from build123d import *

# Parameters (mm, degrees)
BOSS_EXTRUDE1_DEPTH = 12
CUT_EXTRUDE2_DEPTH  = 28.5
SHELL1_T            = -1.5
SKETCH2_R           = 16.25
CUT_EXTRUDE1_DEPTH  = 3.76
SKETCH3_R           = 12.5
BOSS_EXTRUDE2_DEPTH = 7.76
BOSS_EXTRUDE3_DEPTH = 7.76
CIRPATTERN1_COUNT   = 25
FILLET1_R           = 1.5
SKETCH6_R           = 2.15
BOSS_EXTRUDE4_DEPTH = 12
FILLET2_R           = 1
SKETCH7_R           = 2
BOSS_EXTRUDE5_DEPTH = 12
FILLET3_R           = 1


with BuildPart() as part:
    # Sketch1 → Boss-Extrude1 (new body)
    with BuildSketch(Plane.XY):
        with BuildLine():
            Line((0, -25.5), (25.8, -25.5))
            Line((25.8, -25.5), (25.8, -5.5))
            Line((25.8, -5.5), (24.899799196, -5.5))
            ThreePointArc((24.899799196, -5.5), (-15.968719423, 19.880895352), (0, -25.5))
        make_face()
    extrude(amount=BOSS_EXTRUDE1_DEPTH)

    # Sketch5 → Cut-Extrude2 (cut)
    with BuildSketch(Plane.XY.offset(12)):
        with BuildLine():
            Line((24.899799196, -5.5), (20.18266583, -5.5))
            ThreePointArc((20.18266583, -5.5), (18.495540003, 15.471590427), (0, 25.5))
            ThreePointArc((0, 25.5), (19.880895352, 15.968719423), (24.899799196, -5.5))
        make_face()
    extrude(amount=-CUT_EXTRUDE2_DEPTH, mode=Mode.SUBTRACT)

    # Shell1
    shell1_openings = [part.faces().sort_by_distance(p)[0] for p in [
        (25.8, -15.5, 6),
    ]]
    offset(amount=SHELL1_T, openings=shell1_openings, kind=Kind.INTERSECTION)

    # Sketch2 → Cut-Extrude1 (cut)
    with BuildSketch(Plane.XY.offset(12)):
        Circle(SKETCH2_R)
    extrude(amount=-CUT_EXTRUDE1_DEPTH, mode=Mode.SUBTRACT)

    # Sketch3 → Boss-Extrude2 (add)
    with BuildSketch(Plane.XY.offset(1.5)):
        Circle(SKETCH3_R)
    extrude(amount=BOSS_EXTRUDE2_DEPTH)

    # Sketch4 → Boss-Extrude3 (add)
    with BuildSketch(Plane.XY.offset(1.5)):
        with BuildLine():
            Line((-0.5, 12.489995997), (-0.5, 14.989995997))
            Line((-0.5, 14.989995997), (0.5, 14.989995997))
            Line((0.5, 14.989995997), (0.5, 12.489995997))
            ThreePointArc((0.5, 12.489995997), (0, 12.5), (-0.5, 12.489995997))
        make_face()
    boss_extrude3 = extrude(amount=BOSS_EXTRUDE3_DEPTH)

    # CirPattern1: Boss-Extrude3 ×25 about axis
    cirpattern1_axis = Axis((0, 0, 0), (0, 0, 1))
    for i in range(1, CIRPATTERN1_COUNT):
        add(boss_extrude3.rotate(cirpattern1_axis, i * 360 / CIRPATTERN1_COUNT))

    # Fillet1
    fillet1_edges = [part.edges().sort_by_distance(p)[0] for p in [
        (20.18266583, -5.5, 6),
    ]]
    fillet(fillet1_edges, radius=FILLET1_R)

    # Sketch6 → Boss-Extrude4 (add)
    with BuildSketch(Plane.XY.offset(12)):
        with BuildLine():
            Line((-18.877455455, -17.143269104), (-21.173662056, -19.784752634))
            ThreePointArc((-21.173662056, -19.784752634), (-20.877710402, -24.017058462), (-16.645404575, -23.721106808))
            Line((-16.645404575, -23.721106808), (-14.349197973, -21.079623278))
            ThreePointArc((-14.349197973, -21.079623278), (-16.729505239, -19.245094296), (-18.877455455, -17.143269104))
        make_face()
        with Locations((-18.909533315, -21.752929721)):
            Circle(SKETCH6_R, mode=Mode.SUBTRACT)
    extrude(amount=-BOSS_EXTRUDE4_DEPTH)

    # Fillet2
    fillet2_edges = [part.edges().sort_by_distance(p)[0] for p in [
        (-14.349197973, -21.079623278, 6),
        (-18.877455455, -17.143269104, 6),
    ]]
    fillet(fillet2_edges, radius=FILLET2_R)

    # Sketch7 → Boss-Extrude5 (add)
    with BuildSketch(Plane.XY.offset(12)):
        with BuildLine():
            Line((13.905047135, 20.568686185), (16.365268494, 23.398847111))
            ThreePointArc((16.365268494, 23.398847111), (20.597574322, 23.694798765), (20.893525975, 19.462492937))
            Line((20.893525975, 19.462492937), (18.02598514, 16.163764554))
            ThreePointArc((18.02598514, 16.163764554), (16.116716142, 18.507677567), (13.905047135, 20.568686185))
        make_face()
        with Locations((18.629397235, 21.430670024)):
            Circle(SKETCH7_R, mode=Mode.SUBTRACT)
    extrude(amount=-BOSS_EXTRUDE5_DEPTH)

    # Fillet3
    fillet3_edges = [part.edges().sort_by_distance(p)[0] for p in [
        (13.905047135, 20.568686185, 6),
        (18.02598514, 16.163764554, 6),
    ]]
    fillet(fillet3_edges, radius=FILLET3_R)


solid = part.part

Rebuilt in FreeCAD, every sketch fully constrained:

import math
import FreeCAD as App
import Part
import Sketcher

V = App.Vector
Q = App.Units.Quantity


def edges_at(feature, points):
    """Names of the edges that pass closest to the given points."""
    edges = feature.Shape.Edges
    near = lambda p: min(range(len(edges)), key=lambda i: edges[i].distToShape(Part.Vertex(*p))[0])
    return sorted({f"Edge{near(p) + 1}" for p in points})


def faces_at(feature, points):
    """Names of the faces that lie closest to the given points."""
    faces = feature.Shape.Faces
    near = lambda p: min(range(len(faces)), key=lambda i: faces[i].distToShape(Part.Vertex(*p))[0])
    return sorted({f"Face{near(p) + 1}" for p in points})

doc = App.newDocument("Part")
body = doc.addObject("PartDesign::Body", "Body")

sketch1 = doc.addObject("Sketcher::SketchObject", "Sketch")
body.addObject(sketch1)
sketch1.AttachmentSupport = (doc.XY_Plane, [""])
sketch1.MapMode = "FlatFace"
sketch1.addGeometry(Part.LineSegment(V(0, -25.5, 0), V(25.8, -25.5, 0)), False)
sketch1.addGeometry(Part.LineSegment(V(25.8, -25.5, 0), V(25.8, -5.5, 0)), False)
sketch1.addGeometry(Part.LineSegment(V(25.8, -5.5, 0), V(24.899799, -5.5, 0)), False)
sketch1.addGeometry(Part.ArcOfCircle(Part.Circle(V(0, 0, 0), V(0, 0, 1), 25.5), math.radians(-12.455793), math.radians(270)), False)
sketch1.addConstraint(Sketcher.Constraint("Coincident", 0, 2, 1, 1))
sketch1.addConstraint(Sketcher.Constraint("Coincident", 1, 2, 2, 1))
sketch1.addConstraint(Sketcher.Constraint("Coincident", 2, 2, 3, 1))
sketch1.addConstraint(Sketcher.Constraint("Tangent", 3, 2, 0, 1))
sketch1.addConstraint(Sketcher.Constraint("Horizontal", 0))
sketch1.addConstraint(Sketcher.Constraint("Vertical", 1))
sketch1.addConstraint(Sketcher.Constraint("Horizontal", 2))
sketch1.addConstraint(Sketcher.Constraint("Coincident", 3, 3, -1, 1))
sketch1.addConstraint(Sketcher.Constraint("Radius", 3, Q("25.5 mm")))
sketch1.addConstraint(Sketcher.Constraint("DistanceY", 1, 1, 1, 2, Q("20 mm")))
sketch1.addConstraint(Sketcher.Constraint("DistanceX", 0, 1, 0, 2, Q("25.8 mm")))
pad1 = doc.addObject("PartDesign::Pad", "Pad")
body.addObject(pad1)
pad1.Profile = sketch1
pad1.Length = 12

sketch2 = doc.addObject("Sketcher::SketchObject", "Sketch001")
body.addObject(sketch2)
sketch2.AttachmentSupport = (doc.XY_Plane, [""])
sketch2.MapMode = "FlatFace"
sketch2.AttachmentOffset = App.Placement(V(0, 0, 12), App.Rotation())
sketch2.addGeometry(Part.LineSegment(V(20.182666, -5.5, 0), V(24.899799, -5.5, 0)), False)
sketch2.addGeometry(Part.ArcOfCircle(Part.Circle(V(0, 0, 0), V(0, 0, 1), 25.5), math.radians(-12.455793), math.radians(90)), False)
sketch2.addGeometry(Part.ArcOfCircle(Part.Circle(V(0, 3.43, 0), V(0, 0, 1), 22.07), math.radians(-23.86742), math.radians(90)), False)
sketch2.addConstraint(Sketcher.Constraint("Coincident", 0, 2, 1, 1))
sketch2.addConstraint(Sketcher.Constraint("Tangent", 1, 2, 2, 2))
sketch2.addConstraint(Sketcher.Constraint("Coincident", 2, 1, 0, 1))
sketch2.addConstraint(Sketcher.Constraint("Horizontal", 0))
sketch2.addConstraint(Sketcher.Constraint("Coincident", 1, 3, -1, 1))
sketch2.addConstraint(Sketcher.Constraint("PointOnObject", 2, 3, -2))
sketch2.addConstraint(Sketcher.Constraint("Radius", 1, Q("25.5 mm")))
sketch2.addConstraint(Sketcher.Constraint("Radius", 2, Q("22.07 mm")))
sketch2.addConstraint(Sketcher.Constraint("DistanceY", 0, 2, 1, 2, Q("31 mm")))
pocket1 = doc.addObject("PartDesign::Pocket", "Pocket")
body.addObject(pocket1)
pocket1.Profile = sketch2
pocket1.Length = 28.5
doc.recompute()

thickness = doc.addObject("PartDesign::Thickness", "Thickness")
body.addObject(thickness)
thickness.Base = (pocket1, faces_at(pocket1, [(25.8, -15.5, 6)]))
thickness.Value = 1.5
thickness.Reversed = True
thickness.Join = "Intersection"

sketch3 = doc.addObject("Sketcher::SketchObject", "Sketch002")
body.addObject(sketch3)
sketch3.AttachmentSupport = (doc.XY_Plane, [""])
sketch3.MapMode = "FlatFace"
sketch3.AttachmentOffset = App.Placement(V(0, 0, 12), App.Rotation())
sketch3.addGeometry(Part.Circle(V(0, 0, 0), V(0, 0, 1), 16.25), False)
sketch3.addConstraint(Sketcher.Constraint("Coincident", 0, 3, -1, 1))
sketch3.addConstraint(Sketcher.Constraint("Diameter", 0, Q("32.5 mm")))
pocket2 = doc.addObject("PartDesign::Pocket", "Pocket001")
body.addObject(pocket2)
pocket2.Profile = sketch3
pocket2.Length = 3.76

sketch4 = doc.addObject("Sketcher::SketchObject", "Sketch003")
body.addObject(sketch4)
sketch4.AttachmentSupport = (doc.XY_Plane, [""])
sketch4.MapMode = "FlatFace"
sketch4.AttachmentOffset = App.Placement(V(0, 0, 1.5), App.Rotation())
sketch4.addGeometry(Part.Circle(V(0, 0, 0), V(0, 0, 1), 12.5), False)
sketch4.addConstraint(Sketcher.Constraint("Coincident", 0, 3, -1, 1))
sketch4.addConstraint(Sketcher.Constraint("Diameter", 0, Q("25 mm")))
pad2 = doc.addObject("PartDesign::Pad", "Pad001")
body.addObject(pad2)
pad2.Profile = sketch4
pad2.Length = 7.76

sketch5 = doc.addObject("Sketcher::SketchObject", "Sketch004")
body.addObject(sketch5)
sketch5.AttachmentSupport = (doc.XY_Plane, [""])
sketch5.MapMode = "FlatFace"
sketch5.AttachmentOffset = App.Placement(V(0, 0, 1.5), App.Rotation())
sketch5.addGeometry(Part.LineSegment(V(-0.5, 14.989996, 0), V(-0.5, 12.489996, 0)), False)
sketch5.addGeometry(Part.ArcOfCircle(Part.Circle(V(0, 0, 0), V(0, 0, 1), 12.5), math.radians(87.707557), math.radians(92.292443)), False)
sketch5.addGeometry(Part.LineSegment(V(0.5, 12.489996, 0), V(0.5, 14.989996, 0)), False)
sketch5.addGeometry(Part.LineSegment(V(0.5, 14.989996, 0), V(-0.5, 14.989996, 0)), False)
sketch5.addConstraint(Sketcher.Constraint("Coincident", 0, 2, 1, 2))
sketch5.addConstraint(Sketcher.Constraint("Coincident", 1, 1, 2, 1))
sketch5.addConstraint(Sketcher.Constraint("Coincident", 2, 2, 3, 1))
sketch5.addConstraint(Sketcher.Constraint("Coincident", 3, 2, 0, 1))
sketch5.addConstraint(Sketcher.Constraint("Vertical", 0))
sketch5.addConstraint(Sketcher.Constraint("Vertical", 2))
sketch5.addConstraint(Sketcher.Constraint("Horizontal", 3))
sketch5.addConstraint(Sketcher.Constraint("Coincident", 1, 3, -1, 1))
sketch5.addConstraint(Sketcher.Constraint("Horizontal", 0, 2, 1, 1))
sketch5.addConstraint(Sketcher.Constraint("Radius", 1, Q("12.5 mm")))
sketch5.addConstraint(Sketcher.Constraint("DistanceX", 3, 2, 3, 1, Q("1 mm")))
sketch5.addConstraint(Sketcher.Constraint("DistanceY", 0, 2, 0, 1, Q("2.5 mm")))
pad3 = doc.addObject("PartDesign::Pad", "Pad002")
body.addObject(pad3)
pad3.Profile = sketch5
pad3.Length = 7.76
doc.recompute()

polarpattern = doc.addObject("PartDesign::PolarPattern", "PolarPattern")
body.addObject(polarpattern)
polarpattern.Originals = [pad3]
polarpattern.Axis = (doc.Z_Axis, [""])
polarpattern.Angle = 360
polarpattern.Occurrences = 25
body.Tip = polarpattern
doc.recompute()

fillet = doc.addObject("PartDesign::Fillet", "Fillet")
body.addObject(fillet)
fillet.Base = (polarpattern, edges_at(polarpattern, [(20.183, -5.5, 6)]))
fillet.Radius = 1.5

sketch6 = doc.addObject("Sketcher::SketchObject", "Sketch005")
body.addObject(sketch6)
sketch6.AttachmentSupport = (doc.XY_Plane, [""])
sketch6.MapMode = "FlatFace"
sketch6.AttachmentOffset = App.Placement(V(0, 0, 12), App.Rotation())
sketch6.addGeometry(Part.LineSegment(V(-18.877455, -17.143269, 0), V(-21.173662, -19.784753, 0)), False)
sketch6.addGeometry(Part.ArcOfCircle(Part.Circle(V(-18.909533, -21.75293, 0), V(0, 0, 1), 3), math.radians(139), math.radians(319)), False)
sketch6.addGeometry(Part.LineSegment(V(-16.645405, -23.721107, 0), V(-14.349198, -21.079623, 0)), False)
sketch6.addGeometry(Part.ArcOfCircle(Part.Circle(V(0, 0, 0), V(0, 0, 1), 25.5), math.radians(-137.756327), math.radians(-124.243673)), False)
sketch6.addGeometry(Part.Circle(V(-18.909533, -21.75293, 0), V(0, 0, 1), 2.15), False)
sketch6.addConstraint(Sketcher.Constraint("Tangent", 0, 2, 1, 1))
sketch6.addConstraint(Sketcher.Constraint("Tangent", 1, 2, 2, 1))
sketch6.addConstraint(Sketcher.Constraint("Coincident", 2, 2, 3, 2))
sketch6.addConstraint(Sketcher.Constraint("Coincident", 3, 1, 0, 1))
sketch6.addConstraint(Sketcher.Constraint("Coincident", 3, 3, -1, 1))
sketch6.addConstraint(Sketcher.Constraint("Coincident", 4, 3, 1, 3))
sketch6.addConstraint(Sketcher.Constraint("Parallel", 0, 2))
sketch6.addConstraint(Sketcher.Constraint("Equal", 0, 2))
sketch6.addConstraint(Sketcher.Constraint("Radius", 1, Q("3 mm")))
sketch6.addConstraint(Sketcher.Constraint("Diameter", 4, Q("4.3 mm")))
sketch6.addConstraint(Sketcher.Constraint("Radius", 3, Q("25.5 mm")))
sketch6.addConstraint(Sketcher.Constraint("Angle", 0, Q("-131 deg")))
sketch6.addConstraint(Sketcher.Constraint("Distance", 0, Q("3.5 mm")))
pad4 = doc.addObject("PartDesign::Pad", "Pad003")
body.addObject(pad4)
pad4.Profile = sketch6
pad4.Length = 12
pad4.Reversed = True
doc.recompute()

fillet2 = doc.addObject("PartDesign::Fillet", "Fillet001")
body.addObject(fillet2)
fillet2.Base = (pad4, edges_at(pad4, [(-14.349, -21.08, 6), (-18.877, -17.143, 6)]))
fillet2.Radius = 1

sketch7 = doc.addObject("Sketcher::SketchObject", "Sketch006")
body.addObject(sketch7)
sketch7.AttachmentSupport = (doc.XY_Plane, [""])
sketch7.MapMode = "FlatFace"
sketch7.AttachmentOffset = App.Placement(V(0, 0, 12), App.Rotation())
sketch7.addGeometry(Part.LineSegment(V(16.365268, 23.398847, 0), V(13.905047, 20.568686, 0)), False)
sketch7.addGeometry(Part.ArcOfCircle(Part.Circle(V(0, 3.43, 0), V(0, 0, 1), 22.07), math.radians(35.237826), math.radians(50.946711)), False)
sketch7.addGeometry(Part.LineSegment(V(18.025985, 16.163765, 0), V(20.893526, 19.462493, 0)), False)
sketch7.addGeometry(Part.ArcOfCircle(Part.Circle(V(18.629397, 21.43067, 0), V(0, 0, 1), 3), math.radians(-41), math.radians(139)), False)
sketch7.addGeometry(Part.Circle(V(18.629397, 21.43067, 0), V(0, 0, 1), 2), False)
sketch7.addConstraint(Sketcher.Constraint("Coincident", 0, 2, 1, 2))
sketch7.addConstraint(Sketcher.Constraint("Coincident", 1, 1, 2, 1))
sketch7.addConstraint(Sketcher.Constraint("Tangent", 2, 2, 3, 1))
sketch7.addConstraint(Sketcher.Constraint("Tangent", 3, 2, 0, 1))
sketch7.addConstraint(Sketcher.Constraint("Coincident", 4, 3, 3, 3))
sketch7.addConstraint(Sketcher.Constraint("PointOnObject", 1, 3, -2))
sketch7.addConstraint(Sketcher.Constraint("Parallel", 0, 2))
sketch7.addConstraint(Sketcher.Constraint("Diameter", 4, Q("4 mm")))
sketch7.addConstraint(Sketcher.Constraint("Radius", 3, Q("3 mm")))
sketch7.addConstraint(Sketcher.Constraint("Angle", 0, Q("-131 deg")))
sketch7.addConstraint(Sketcher.Constraint("Radius", 1, Q("22.07 mm")))
sketch7.addConstraint(Sketcher.Constraint("Distance", 0, Q("3.75 mm")))
sketch7.addConstraint(Sketcher.Constraint("DistanceY", -1, 1, 1, 3, Q("3.43 mm")))
sketch7.addConstraint(Sketcher.Constraint("DistanceY", -1, 1, 3, 3, Q("21.43067 mm")))
pad5 = doc.addObject("PartDesign::Pad", "Pad004")
body.addObject(pad5)
pad5.Profile = sketch7
pad5.Length = 12
pad5.Reversed = True
doc.recompute()

fillet3 = doc.addObject("PartDesign::Fillet", "Fillet002")
body.addObject(fillet3)
fillet3.Base = (pad5, edges_at(pad5, [(13.905, 20.569, 6), (18.026, 16.164, 6)]))
fillet3.Radius = 1

doc.recompute()
